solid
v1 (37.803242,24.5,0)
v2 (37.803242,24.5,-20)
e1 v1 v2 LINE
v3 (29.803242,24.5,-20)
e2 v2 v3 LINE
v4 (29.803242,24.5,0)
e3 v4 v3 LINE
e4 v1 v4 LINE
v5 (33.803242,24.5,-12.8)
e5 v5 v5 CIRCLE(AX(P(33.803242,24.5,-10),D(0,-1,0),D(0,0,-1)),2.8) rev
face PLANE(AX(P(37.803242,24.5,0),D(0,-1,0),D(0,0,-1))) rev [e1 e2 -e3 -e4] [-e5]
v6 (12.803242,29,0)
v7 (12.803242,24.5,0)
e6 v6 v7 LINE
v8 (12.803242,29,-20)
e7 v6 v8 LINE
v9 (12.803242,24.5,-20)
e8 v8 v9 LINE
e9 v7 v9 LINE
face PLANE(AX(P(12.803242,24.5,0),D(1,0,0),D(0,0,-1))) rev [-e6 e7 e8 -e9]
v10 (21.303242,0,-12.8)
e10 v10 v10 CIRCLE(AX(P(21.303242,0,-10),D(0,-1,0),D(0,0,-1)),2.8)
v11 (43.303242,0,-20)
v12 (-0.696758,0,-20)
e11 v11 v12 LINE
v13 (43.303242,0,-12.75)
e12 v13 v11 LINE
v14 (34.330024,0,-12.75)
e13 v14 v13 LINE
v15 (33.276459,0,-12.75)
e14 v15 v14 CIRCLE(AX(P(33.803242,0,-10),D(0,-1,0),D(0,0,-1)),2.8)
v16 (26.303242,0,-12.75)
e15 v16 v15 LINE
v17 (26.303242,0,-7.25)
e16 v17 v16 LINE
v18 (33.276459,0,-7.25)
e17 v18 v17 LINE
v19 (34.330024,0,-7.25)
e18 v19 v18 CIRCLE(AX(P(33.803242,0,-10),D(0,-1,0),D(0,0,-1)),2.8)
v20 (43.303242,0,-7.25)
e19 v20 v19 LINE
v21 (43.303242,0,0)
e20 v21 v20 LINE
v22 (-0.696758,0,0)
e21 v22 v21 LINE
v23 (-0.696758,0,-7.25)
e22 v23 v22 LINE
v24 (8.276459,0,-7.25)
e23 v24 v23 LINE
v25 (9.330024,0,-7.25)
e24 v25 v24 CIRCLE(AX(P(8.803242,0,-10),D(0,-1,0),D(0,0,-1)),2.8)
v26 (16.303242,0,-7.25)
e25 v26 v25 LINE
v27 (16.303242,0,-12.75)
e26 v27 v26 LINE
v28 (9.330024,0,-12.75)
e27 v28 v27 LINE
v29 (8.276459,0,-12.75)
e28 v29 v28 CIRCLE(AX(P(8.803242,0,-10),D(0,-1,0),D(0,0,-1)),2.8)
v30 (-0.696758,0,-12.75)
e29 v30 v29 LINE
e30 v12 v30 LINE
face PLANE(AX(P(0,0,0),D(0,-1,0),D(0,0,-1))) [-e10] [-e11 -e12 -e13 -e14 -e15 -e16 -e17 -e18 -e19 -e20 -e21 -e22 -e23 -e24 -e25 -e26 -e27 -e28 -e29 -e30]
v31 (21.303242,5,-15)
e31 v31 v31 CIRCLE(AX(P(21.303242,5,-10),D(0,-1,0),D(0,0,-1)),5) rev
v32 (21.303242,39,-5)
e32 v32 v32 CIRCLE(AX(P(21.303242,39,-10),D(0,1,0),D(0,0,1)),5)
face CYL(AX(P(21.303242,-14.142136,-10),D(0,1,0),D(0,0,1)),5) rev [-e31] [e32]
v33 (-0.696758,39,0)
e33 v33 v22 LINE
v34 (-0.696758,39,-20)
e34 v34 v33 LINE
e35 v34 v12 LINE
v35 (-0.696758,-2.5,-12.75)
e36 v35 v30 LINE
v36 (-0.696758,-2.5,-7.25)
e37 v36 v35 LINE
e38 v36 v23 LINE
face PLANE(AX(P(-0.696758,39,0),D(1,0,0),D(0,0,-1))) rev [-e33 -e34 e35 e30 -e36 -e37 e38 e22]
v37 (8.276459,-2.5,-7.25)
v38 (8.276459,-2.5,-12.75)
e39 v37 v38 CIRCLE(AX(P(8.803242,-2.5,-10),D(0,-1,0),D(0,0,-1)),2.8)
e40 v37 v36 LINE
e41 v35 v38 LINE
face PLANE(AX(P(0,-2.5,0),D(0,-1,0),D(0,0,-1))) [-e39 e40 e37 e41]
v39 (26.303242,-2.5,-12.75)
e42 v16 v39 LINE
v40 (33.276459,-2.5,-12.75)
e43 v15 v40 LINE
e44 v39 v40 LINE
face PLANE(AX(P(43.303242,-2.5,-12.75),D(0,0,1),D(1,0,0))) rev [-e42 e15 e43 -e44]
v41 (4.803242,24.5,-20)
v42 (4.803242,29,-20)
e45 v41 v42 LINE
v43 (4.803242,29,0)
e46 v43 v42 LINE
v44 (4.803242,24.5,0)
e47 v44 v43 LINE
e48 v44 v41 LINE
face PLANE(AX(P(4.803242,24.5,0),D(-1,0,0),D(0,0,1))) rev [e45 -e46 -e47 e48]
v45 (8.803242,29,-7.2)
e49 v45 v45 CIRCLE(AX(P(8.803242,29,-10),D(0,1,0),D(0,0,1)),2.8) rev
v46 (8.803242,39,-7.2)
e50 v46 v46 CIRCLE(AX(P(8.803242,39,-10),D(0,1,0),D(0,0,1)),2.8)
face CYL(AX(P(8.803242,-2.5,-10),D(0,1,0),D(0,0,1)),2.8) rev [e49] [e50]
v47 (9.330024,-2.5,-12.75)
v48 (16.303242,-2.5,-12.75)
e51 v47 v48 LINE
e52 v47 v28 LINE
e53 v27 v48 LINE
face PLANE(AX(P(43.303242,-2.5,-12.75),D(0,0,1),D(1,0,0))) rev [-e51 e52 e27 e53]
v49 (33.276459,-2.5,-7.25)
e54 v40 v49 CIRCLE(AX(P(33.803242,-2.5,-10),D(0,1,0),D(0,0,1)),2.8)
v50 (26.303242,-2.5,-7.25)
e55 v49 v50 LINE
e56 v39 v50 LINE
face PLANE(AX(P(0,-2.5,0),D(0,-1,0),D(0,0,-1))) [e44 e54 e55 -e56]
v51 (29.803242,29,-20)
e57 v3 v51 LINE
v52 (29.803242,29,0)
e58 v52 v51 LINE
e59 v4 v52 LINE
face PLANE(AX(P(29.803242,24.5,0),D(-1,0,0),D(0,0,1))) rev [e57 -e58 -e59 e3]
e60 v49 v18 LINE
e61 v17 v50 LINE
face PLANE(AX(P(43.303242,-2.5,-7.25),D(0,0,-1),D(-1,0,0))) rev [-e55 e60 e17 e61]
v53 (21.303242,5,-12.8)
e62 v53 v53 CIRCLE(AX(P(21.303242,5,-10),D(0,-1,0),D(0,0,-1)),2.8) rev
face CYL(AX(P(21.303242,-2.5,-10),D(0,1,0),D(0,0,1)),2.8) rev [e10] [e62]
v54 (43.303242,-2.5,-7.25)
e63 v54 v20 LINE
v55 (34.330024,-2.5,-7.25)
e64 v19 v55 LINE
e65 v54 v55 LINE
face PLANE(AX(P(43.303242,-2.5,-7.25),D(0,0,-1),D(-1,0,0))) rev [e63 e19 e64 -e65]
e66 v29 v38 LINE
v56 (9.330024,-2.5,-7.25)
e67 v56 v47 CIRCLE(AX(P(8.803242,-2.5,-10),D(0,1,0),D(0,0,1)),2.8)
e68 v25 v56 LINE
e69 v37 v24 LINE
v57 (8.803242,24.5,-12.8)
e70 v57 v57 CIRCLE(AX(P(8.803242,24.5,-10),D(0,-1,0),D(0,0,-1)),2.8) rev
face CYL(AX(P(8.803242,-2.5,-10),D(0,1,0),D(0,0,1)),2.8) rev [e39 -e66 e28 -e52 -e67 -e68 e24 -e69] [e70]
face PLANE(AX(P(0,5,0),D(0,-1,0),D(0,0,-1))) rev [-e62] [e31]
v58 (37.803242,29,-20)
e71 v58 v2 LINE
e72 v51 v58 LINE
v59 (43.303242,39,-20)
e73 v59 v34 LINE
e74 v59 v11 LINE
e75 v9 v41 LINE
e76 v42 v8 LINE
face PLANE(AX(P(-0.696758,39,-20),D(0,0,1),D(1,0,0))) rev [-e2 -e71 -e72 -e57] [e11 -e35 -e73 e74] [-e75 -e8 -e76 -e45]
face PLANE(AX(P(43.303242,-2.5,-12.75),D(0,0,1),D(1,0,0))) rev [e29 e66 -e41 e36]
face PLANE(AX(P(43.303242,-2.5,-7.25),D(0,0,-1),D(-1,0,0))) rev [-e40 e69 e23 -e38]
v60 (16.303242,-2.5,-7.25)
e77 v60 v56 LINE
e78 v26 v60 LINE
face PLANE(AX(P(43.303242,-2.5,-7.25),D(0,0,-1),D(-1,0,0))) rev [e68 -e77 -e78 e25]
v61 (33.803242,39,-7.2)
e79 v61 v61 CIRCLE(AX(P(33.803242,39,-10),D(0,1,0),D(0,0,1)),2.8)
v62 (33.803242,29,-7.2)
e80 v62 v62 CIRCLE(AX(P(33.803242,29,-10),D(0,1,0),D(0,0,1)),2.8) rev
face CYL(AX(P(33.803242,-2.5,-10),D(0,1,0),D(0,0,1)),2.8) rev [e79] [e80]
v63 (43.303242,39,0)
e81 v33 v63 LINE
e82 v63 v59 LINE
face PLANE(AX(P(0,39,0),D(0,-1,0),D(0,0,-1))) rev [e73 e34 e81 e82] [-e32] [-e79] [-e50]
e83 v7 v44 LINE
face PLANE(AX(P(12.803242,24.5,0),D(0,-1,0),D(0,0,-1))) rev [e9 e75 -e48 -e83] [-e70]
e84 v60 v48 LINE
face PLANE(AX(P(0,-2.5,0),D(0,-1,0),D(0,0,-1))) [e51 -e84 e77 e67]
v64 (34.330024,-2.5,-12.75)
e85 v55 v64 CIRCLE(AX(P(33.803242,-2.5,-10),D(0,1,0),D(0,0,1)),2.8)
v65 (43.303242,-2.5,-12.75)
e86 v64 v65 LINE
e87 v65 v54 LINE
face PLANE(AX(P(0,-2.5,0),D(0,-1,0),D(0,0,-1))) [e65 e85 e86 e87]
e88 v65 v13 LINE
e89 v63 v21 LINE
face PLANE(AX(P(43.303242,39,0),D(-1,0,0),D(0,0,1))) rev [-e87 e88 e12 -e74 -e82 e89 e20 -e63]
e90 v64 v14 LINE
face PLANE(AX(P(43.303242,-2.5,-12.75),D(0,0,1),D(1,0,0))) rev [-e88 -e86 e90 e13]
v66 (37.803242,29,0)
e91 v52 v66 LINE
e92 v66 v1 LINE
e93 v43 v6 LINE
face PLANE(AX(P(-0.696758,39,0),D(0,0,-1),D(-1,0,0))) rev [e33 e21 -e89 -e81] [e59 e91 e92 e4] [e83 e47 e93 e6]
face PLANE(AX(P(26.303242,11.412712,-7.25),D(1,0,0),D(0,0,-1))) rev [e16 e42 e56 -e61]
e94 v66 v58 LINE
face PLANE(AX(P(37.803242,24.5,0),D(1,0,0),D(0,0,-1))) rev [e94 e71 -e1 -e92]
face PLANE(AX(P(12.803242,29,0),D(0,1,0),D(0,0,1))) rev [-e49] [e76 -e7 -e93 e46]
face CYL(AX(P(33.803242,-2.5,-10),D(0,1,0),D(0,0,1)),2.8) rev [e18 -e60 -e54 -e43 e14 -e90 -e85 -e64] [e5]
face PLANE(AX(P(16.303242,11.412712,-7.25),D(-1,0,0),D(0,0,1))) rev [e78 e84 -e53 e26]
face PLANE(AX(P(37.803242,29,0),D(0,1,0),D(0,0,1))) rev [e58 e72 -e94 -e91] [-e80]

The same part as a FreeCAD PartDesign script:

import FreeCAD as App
import Part
import Sketcher

V = App.Vector

doc = App.newDocument("Part")
body = doc.addObject("PartDesign::Body", "Body")

# Sketch on XZ plane
sketch1 = body.newObject("Sketcher::SketchObject", "Sketch")
sketch1.AttachmentSupport = (doc.getObject("XZ_Plane"), [""])
sketch1.MapMode = "FlatFace"
sketch1.addGeometry(Part.LineSegment(V(-0.696758, -20, 0), V(-0.696758, 0, 0)), False)
sketch1.addGeometry(Part.LineSegment(V(-0.696758, 0, 0), V(43.303242, 0, 0)), False)
sketch1.addGeometry(Part.LineSegment(V(43.303242, 0, 0), V(43.303242, -20, 0)), False)
sketch1.addGeometry(Part.LineSegment(V(43.303242, -20, 0), V(-0.696758, -20, 0)), False)
sketch1.addConstraint(Sketcher.Constraint("Coincident", 0, 2, 1, 1))
sketch1.addConstraint(Sketcher.Constraint("Coincident", 1, 2, 2, 1))
sketch1.addConstraint(Sketcher.Constraint("Coincident", 2, 2, 3, 1))
sketch1.addConstraint(Sketcher.Constraint("Coincident", 3, 2, 0, 1))
sketch1.addConstraint(Sketcher.Constraint("Vertical", 0))
sketch1.addConstraint(Sketcher.Constraint("Horizontal", 1))
sketch1.addConstraint(Sketcher.Constraint("Vertical", 2))
sketch1.addConstraint(Sketcher.Constraint("Horizontal", 3))
sketch1.addConstraint(Sketcher.Constraint("PointOnObject", 0, 2, -1))
sketch1.addConstraint(Sketcher.Constraint("DistanceX", 1, 1, 1, 2, 44.0))
sketch1.addConstraint(Sketcher.Constraint("DistanceY", 0, 1, 0, 2, 20.0))
sketch1.addConstraint(Sketcher.Constraint("DistanceX", 0, 2, -1, 1, 0.696758))
pad1 = body.newObject("PartDesign::Pad", "Pad")
pad1.Profile = sketch1
pad1.Length = 39
pad1.Reversed = True

# Sketch on XZ plane
sketch2 = body.newObject("Sketcher::SketchObject", "Sketch001")
sketch2.AttachmentSupport = (doc.getObject("XZ_Plane"), [""])
sketch2.MapMode = "FlatFace"
sketch2.addGeometry(Part.LineSegment(V(-0.696758, -7.25, 0), V(-0.696758, -12.75, 0)), False)
sketch2.addGeometry(Part.LineSegment(V(-0.696758, -12.75, 0), V(43.303242, -12.75, 0)), False)
sketch2.addGeometry(Part.LineSegment(V(43.303242, -12.75, 0), V(43.303242, -7.25, 0)), False)
sketch2.addGeometry(Part.LineSegment(V(43.303242, -7.25, 0), V(-0.696758, -7.25, 0)), False)
sketch2.addConstraint(Sketcher.Constraint("Coincident", 0, 2, 1, 1))
sketch2.addConstraint(Sketcher.Constraint("Coincident", 1, 2, 2, 1))
sketch2.addConstraint(Sketcher.Constraint("Coincident", 2, 2, 3, 1))
sketch2.addConstraint(Sketcher.Constraint("Coincident", 3, 2, 0, 1))
sketch2.addConstraint(Sketcher.Constraint("Vertical", 0))
sketch2.addConstraint(Sketcher.Constraint("Horizontal", 1))
sketch2.addConstraint(Sketcher.Constraint("Vertical", 2))
sketch2.addConstraint(Sketcher.Constraint("Horizontal", 3))
sketch2.addConstraint(Sketcher.Constraint("DistanceX", 1, 1, 1, 2, 44.0))
sketch2.addConstraint(Sketcher.Constraint("DistanceY", 0, 2, 0, 1, 5.5))
sketch2.addConstraint(Sketcher.Constraint("DistanceY", 0, 2, -1, 1, 12.75))
sketch2.addConstraint(Sketcher.Constraint("DistanceX", 0, 2, -1, 1, 0.696758))
pad2 = body.newObject("PartDesign::Pad", "Pad001")
pad2.Profile = sketch2
pad2.Length = 2.5

# Sketch on XZ plane
sketch3 = body.newObject("Sketcher::SketchObject", "Sketch002")
sketch3.AttachmentSupport = (doc.getObject("XZ_Plane"), [""])
sketch3.MapMode = "FlatFace"
sketch3.AttachmentOffset = App.Placement(V(0, 0, -39), App.Rotation())
sketch3.addGeometry(Part.Circle(V(8.803242, -10, 0), V(0, 0, 1), 2.8), False)
sketch3.addGeometry(Part.Circle(V(33.803242, -10, 0), V(0, 0, 1), 2.8), False)
sketch3.addGeometry(Part.Circle(V(21.303242, -10, 0), V(0, 0, 1), 2.8), False)
sketch3.addConstraint(Sketcher.Constraint("Equal", 0, 1))
sketch3.addConstraint(Sketcher.Constraint("Equal", 1, 2))
sketch3.addConstraint(Sketcher.Constraint("Horizontal", 0, 3, 1, 3))
sketch3.addConstraint(Sketcher.Constraint("Horizontal", 1, 3, 2, 3))
sketch3.addConstraint(Sketcher.Constraint("Diameter", 0, 5.6))
sketch3.addConstraint(Sketcher.Constraint("DistanceY", 0, 3, -1, 1, 10.0))
sketch3.addConstraint(Sketcher.Constraint("DistanceX", 0, 3, 1, 3, 25.0))
sketch3.addConstraint(Sketcher.Constraint("DistanceX", 0, 3, 2, 3, 12.5))
sketch3.addConstraint(Sketcher.Constraint("DistanceX", -1, 1, 0, 3, 8.803242))
pocket1 = body.newObject("PartDesign::Pocket", "Pocket")
pocket1.Profile = sketch3
pocket1.Type = "ThroughAll"
pocket1.Reversed = True

# Sketch on XZ plane
sketch4 = body.newObject("Sketcher::SketchObject", "Sketch003")
sketch4.AttachmentSupport = (doc.getObject("XZ_Plane"), [""])
sketch4.MapMode = "FlatFace"
sketch4.AttachmentOffset = App.Placement(V(0, 0, -39), App.Rotation())
sketch4.addGeometry(Part.Circle(V(21.303242, -10, 0), V(0, 0, 1), 5), False)
sketch4.addConstraint(Sketcher.Constraint("Diameter", 0, 10.0))
sketch4.addConstraint(Sketcher.Constraint("DistanceY", 0, 3, -1, 1, 10.0))
sketch4.addConstraint(Sketcher.Constraint("DistanceX", -1, 1, 0, 3, 21.303242))
pocket2 = body.newObject("PartDesign::Pocket", "Pocket001")
pocket2.Profile = sketch4
pocket2.Length = 34
pocket2.Reversed = True

# Sketch on XY plane
sketch5 = body.newObject("Sketcher::SketchObject", "Sketch004")
sketch5.AttachmentSupport = (doc.getObject("XY_Plane"), [""])
sketch5.MapMode = "FlatFace"
sketch5.AttachmentOffset = App.Placement(V(0, 0, -20), App.Rotation())
sketch5.addGeometry(Part.LineSegment(V(37.803242, 29, 0), V(37.803242, 24.5, 0)), False)
sketch5.addGeometry(Part.LineSegment(V(37.803242, 24.5, 0), V(29.803242, 24.5, 0)), False)
sketch5.addGeometry(Part.LineSegment(V(29.803242, 24.5, 0), V(29.803242, 29, 0)), False)
sketch5.addGeometry(Part.LineSegment(V(29.803242, 29, 0), V(37.803242, 29, 0)), False)
sketch5.addGeometry(Part.LineSegment(V(12.803242, 29, 0), V(12.803242, 24.5, 0)), False)
sketch5.addGeometry(Part.LineSegment(V(12.803242, 24.5, 0), V(4.803242, 24.5, 0)), False)
sketch5.addGeometry(Part.LineSegment(V(4.803242, 24.5, 0), V(4.803242, 29, 0)), False)
sketch5.addGeometry(Part.LineSegment(V(4.803242, 29, 0), V(12.803242, 29, 0)), False)
sketch5.addConstraint(Sketcher.Constraint("Coincident", 0, 2, 1, 1))
sketch5.addConstraint(Sketcher.Constraint("Coincident", 1, 2, 2, 1))
sketch5.addConstraint(Sketcher.Constraint("Coincident", 2, 2, 3, 1))
sketch5.addConstraint(Sketcher.Constraint("Coincident", 3, 2, 0, 1))
sketch5.addConstraint(Sketcher.Constraint("Coincident", 4, 2, 5, 1))
sketch5.addConstraint(Sketcher.Constraint("Coincident", 5, 2, 6, 1))
sketch5.addConstraint(Sketcher.Constraint("Coincident", 6, 2, 7, 1))
sketch5.addConstraint(Sketcher.Constraint("Coincident", 7, 2, 4, 1))
sketch5.addConstraint(Sketcher.Constraint("Vertical", 0))
sketch5.addConstraint(Sketcher.Constraint("Horizontal", 1))
sketch5.addConstraint(Sketcher.Constraint("Vertical", 2))
sketch5.addConstraint(Sketcher.Constraint("Horizontal", 3))
sketch5.addConstraint(Sketcher.Constraint("Vertical", 4))
sketch5.addConstraint(Sketcher.Constraint("Horizontal", 5))
sketch5.addConstraint(Sketcher.Constraint("Vertical", 6))
sketch5.addConstraint(Sketcher.Constraint("Horizontal", 7))
sketch5.addConstraint(Sketcher.Constraint("Horizontal", 1, 2, 4, 2))
sketch5.addConstraint(Sketcher.Constraint("Horizontal", 3, 2, 6, 2))
sketch5.addConstraint(Sketcher.Constraint("Equal", 3, 5))
sketch5.addConstraint(Sketcher.Constraint("DistanceX", 1, 2, 1, 1, 8.0))
sketch5.addConstraint(Sketcher.Constraint("DistanceY", 0, 2, 0, 1, 4.5))
sketch5.addConstraint(Sketcher.Constraint("DistanceY", -1, 1, 2, 2, 29.0))
sketch5.addConstraint(Sketcher.Constraint("DistanceX", 4, 2, 1, 2, 17.0))
sketch5.addConstraint(Sketcher.Constraint("DistanceX", -1, 1, 0, 2, 37.803242))
pocket3 = body.newObject("PartDesign::Pocket", "Pocket002")
pocket3.Profile = sketch5
pocket3.Type = "ThroughAll"
pocket3.Reversed = True

# Sketch on XZ plane
sketch6 = body.newObject("Sketcher::SketchObject", "Sketch005")
sketch6.AttachmentSupport = (doc.getObject("XZ_Plane"), [""])
sketch6.MapMode = "FlatFace"
sketch6.AttachmentOffset = App.Placement(V(0, 0, 2.5), App.Rotation())
sketch6.addGeometry(Part.LineSegment(V(16.303242, -7.25, 0), V(16.303242, -12.75, 0)), False)
sketch6.addGeometry(Part.LineSegment(V(16.303242, -12.75, 0), V(26.303242, -12.75, 0)), False)
sketch6.addGeometry(Part.LineSegment(V(26.303242, -12.75, 0), V(26.303242, -7.25, 0)), False)
sketch6.addGeometry(Part.LineSegment(V(26.303242, -7.25, 0), V(16.303242, -7.25, 0)), False)
sketch6.addConstraint(Sketcher.Constraint("Coincident", 0, 2, 1, 1))
sketch6.addConstraint(Sketcher.Constraint("Coincident", 1, 2, 2, 1))
sketch6.addConstraint(Sketcher.Constraint("Coincident", 2, 2, 3, 1))
sketch6.addConstraint(Sketcher.Constraint("Coincident", 3, 2, 0, 1))
sketch6.addConstraint(Sketcher.Constraint("Vertical", 0))
sketch6.addConstraint(Sketcher.Constraint("Horizontal", 1))
sketch6.addConstraint(Sketcher.Constraint("Vertical", 2))
sketch6.addConstraint(Sketcher.Constraint("Horizontal", 3))
sketch6.addConstraint(Sketcher.Constraint("DistanceX", 1, 1, 1, 2, 10.0))
sketch6.addConstraint(Sketcher.Constraint("DistanceY", 0, 2, 0, 1, 5.5))
sketch6.addConstraint(Sketcher.Constraint("DistanceY", 0, 2, -1, 1, 12.75))
sketch6.addConstraint(Sketcher.Constraint("DistanceX", -1, 1, 0, 2, 16.303242))
pocket4 = body.newObject("PartDesign::Pocket", "Pocket003")
pocket4.Profile = sketch6
pocket4.Length = 2.5

doc.recompute()
